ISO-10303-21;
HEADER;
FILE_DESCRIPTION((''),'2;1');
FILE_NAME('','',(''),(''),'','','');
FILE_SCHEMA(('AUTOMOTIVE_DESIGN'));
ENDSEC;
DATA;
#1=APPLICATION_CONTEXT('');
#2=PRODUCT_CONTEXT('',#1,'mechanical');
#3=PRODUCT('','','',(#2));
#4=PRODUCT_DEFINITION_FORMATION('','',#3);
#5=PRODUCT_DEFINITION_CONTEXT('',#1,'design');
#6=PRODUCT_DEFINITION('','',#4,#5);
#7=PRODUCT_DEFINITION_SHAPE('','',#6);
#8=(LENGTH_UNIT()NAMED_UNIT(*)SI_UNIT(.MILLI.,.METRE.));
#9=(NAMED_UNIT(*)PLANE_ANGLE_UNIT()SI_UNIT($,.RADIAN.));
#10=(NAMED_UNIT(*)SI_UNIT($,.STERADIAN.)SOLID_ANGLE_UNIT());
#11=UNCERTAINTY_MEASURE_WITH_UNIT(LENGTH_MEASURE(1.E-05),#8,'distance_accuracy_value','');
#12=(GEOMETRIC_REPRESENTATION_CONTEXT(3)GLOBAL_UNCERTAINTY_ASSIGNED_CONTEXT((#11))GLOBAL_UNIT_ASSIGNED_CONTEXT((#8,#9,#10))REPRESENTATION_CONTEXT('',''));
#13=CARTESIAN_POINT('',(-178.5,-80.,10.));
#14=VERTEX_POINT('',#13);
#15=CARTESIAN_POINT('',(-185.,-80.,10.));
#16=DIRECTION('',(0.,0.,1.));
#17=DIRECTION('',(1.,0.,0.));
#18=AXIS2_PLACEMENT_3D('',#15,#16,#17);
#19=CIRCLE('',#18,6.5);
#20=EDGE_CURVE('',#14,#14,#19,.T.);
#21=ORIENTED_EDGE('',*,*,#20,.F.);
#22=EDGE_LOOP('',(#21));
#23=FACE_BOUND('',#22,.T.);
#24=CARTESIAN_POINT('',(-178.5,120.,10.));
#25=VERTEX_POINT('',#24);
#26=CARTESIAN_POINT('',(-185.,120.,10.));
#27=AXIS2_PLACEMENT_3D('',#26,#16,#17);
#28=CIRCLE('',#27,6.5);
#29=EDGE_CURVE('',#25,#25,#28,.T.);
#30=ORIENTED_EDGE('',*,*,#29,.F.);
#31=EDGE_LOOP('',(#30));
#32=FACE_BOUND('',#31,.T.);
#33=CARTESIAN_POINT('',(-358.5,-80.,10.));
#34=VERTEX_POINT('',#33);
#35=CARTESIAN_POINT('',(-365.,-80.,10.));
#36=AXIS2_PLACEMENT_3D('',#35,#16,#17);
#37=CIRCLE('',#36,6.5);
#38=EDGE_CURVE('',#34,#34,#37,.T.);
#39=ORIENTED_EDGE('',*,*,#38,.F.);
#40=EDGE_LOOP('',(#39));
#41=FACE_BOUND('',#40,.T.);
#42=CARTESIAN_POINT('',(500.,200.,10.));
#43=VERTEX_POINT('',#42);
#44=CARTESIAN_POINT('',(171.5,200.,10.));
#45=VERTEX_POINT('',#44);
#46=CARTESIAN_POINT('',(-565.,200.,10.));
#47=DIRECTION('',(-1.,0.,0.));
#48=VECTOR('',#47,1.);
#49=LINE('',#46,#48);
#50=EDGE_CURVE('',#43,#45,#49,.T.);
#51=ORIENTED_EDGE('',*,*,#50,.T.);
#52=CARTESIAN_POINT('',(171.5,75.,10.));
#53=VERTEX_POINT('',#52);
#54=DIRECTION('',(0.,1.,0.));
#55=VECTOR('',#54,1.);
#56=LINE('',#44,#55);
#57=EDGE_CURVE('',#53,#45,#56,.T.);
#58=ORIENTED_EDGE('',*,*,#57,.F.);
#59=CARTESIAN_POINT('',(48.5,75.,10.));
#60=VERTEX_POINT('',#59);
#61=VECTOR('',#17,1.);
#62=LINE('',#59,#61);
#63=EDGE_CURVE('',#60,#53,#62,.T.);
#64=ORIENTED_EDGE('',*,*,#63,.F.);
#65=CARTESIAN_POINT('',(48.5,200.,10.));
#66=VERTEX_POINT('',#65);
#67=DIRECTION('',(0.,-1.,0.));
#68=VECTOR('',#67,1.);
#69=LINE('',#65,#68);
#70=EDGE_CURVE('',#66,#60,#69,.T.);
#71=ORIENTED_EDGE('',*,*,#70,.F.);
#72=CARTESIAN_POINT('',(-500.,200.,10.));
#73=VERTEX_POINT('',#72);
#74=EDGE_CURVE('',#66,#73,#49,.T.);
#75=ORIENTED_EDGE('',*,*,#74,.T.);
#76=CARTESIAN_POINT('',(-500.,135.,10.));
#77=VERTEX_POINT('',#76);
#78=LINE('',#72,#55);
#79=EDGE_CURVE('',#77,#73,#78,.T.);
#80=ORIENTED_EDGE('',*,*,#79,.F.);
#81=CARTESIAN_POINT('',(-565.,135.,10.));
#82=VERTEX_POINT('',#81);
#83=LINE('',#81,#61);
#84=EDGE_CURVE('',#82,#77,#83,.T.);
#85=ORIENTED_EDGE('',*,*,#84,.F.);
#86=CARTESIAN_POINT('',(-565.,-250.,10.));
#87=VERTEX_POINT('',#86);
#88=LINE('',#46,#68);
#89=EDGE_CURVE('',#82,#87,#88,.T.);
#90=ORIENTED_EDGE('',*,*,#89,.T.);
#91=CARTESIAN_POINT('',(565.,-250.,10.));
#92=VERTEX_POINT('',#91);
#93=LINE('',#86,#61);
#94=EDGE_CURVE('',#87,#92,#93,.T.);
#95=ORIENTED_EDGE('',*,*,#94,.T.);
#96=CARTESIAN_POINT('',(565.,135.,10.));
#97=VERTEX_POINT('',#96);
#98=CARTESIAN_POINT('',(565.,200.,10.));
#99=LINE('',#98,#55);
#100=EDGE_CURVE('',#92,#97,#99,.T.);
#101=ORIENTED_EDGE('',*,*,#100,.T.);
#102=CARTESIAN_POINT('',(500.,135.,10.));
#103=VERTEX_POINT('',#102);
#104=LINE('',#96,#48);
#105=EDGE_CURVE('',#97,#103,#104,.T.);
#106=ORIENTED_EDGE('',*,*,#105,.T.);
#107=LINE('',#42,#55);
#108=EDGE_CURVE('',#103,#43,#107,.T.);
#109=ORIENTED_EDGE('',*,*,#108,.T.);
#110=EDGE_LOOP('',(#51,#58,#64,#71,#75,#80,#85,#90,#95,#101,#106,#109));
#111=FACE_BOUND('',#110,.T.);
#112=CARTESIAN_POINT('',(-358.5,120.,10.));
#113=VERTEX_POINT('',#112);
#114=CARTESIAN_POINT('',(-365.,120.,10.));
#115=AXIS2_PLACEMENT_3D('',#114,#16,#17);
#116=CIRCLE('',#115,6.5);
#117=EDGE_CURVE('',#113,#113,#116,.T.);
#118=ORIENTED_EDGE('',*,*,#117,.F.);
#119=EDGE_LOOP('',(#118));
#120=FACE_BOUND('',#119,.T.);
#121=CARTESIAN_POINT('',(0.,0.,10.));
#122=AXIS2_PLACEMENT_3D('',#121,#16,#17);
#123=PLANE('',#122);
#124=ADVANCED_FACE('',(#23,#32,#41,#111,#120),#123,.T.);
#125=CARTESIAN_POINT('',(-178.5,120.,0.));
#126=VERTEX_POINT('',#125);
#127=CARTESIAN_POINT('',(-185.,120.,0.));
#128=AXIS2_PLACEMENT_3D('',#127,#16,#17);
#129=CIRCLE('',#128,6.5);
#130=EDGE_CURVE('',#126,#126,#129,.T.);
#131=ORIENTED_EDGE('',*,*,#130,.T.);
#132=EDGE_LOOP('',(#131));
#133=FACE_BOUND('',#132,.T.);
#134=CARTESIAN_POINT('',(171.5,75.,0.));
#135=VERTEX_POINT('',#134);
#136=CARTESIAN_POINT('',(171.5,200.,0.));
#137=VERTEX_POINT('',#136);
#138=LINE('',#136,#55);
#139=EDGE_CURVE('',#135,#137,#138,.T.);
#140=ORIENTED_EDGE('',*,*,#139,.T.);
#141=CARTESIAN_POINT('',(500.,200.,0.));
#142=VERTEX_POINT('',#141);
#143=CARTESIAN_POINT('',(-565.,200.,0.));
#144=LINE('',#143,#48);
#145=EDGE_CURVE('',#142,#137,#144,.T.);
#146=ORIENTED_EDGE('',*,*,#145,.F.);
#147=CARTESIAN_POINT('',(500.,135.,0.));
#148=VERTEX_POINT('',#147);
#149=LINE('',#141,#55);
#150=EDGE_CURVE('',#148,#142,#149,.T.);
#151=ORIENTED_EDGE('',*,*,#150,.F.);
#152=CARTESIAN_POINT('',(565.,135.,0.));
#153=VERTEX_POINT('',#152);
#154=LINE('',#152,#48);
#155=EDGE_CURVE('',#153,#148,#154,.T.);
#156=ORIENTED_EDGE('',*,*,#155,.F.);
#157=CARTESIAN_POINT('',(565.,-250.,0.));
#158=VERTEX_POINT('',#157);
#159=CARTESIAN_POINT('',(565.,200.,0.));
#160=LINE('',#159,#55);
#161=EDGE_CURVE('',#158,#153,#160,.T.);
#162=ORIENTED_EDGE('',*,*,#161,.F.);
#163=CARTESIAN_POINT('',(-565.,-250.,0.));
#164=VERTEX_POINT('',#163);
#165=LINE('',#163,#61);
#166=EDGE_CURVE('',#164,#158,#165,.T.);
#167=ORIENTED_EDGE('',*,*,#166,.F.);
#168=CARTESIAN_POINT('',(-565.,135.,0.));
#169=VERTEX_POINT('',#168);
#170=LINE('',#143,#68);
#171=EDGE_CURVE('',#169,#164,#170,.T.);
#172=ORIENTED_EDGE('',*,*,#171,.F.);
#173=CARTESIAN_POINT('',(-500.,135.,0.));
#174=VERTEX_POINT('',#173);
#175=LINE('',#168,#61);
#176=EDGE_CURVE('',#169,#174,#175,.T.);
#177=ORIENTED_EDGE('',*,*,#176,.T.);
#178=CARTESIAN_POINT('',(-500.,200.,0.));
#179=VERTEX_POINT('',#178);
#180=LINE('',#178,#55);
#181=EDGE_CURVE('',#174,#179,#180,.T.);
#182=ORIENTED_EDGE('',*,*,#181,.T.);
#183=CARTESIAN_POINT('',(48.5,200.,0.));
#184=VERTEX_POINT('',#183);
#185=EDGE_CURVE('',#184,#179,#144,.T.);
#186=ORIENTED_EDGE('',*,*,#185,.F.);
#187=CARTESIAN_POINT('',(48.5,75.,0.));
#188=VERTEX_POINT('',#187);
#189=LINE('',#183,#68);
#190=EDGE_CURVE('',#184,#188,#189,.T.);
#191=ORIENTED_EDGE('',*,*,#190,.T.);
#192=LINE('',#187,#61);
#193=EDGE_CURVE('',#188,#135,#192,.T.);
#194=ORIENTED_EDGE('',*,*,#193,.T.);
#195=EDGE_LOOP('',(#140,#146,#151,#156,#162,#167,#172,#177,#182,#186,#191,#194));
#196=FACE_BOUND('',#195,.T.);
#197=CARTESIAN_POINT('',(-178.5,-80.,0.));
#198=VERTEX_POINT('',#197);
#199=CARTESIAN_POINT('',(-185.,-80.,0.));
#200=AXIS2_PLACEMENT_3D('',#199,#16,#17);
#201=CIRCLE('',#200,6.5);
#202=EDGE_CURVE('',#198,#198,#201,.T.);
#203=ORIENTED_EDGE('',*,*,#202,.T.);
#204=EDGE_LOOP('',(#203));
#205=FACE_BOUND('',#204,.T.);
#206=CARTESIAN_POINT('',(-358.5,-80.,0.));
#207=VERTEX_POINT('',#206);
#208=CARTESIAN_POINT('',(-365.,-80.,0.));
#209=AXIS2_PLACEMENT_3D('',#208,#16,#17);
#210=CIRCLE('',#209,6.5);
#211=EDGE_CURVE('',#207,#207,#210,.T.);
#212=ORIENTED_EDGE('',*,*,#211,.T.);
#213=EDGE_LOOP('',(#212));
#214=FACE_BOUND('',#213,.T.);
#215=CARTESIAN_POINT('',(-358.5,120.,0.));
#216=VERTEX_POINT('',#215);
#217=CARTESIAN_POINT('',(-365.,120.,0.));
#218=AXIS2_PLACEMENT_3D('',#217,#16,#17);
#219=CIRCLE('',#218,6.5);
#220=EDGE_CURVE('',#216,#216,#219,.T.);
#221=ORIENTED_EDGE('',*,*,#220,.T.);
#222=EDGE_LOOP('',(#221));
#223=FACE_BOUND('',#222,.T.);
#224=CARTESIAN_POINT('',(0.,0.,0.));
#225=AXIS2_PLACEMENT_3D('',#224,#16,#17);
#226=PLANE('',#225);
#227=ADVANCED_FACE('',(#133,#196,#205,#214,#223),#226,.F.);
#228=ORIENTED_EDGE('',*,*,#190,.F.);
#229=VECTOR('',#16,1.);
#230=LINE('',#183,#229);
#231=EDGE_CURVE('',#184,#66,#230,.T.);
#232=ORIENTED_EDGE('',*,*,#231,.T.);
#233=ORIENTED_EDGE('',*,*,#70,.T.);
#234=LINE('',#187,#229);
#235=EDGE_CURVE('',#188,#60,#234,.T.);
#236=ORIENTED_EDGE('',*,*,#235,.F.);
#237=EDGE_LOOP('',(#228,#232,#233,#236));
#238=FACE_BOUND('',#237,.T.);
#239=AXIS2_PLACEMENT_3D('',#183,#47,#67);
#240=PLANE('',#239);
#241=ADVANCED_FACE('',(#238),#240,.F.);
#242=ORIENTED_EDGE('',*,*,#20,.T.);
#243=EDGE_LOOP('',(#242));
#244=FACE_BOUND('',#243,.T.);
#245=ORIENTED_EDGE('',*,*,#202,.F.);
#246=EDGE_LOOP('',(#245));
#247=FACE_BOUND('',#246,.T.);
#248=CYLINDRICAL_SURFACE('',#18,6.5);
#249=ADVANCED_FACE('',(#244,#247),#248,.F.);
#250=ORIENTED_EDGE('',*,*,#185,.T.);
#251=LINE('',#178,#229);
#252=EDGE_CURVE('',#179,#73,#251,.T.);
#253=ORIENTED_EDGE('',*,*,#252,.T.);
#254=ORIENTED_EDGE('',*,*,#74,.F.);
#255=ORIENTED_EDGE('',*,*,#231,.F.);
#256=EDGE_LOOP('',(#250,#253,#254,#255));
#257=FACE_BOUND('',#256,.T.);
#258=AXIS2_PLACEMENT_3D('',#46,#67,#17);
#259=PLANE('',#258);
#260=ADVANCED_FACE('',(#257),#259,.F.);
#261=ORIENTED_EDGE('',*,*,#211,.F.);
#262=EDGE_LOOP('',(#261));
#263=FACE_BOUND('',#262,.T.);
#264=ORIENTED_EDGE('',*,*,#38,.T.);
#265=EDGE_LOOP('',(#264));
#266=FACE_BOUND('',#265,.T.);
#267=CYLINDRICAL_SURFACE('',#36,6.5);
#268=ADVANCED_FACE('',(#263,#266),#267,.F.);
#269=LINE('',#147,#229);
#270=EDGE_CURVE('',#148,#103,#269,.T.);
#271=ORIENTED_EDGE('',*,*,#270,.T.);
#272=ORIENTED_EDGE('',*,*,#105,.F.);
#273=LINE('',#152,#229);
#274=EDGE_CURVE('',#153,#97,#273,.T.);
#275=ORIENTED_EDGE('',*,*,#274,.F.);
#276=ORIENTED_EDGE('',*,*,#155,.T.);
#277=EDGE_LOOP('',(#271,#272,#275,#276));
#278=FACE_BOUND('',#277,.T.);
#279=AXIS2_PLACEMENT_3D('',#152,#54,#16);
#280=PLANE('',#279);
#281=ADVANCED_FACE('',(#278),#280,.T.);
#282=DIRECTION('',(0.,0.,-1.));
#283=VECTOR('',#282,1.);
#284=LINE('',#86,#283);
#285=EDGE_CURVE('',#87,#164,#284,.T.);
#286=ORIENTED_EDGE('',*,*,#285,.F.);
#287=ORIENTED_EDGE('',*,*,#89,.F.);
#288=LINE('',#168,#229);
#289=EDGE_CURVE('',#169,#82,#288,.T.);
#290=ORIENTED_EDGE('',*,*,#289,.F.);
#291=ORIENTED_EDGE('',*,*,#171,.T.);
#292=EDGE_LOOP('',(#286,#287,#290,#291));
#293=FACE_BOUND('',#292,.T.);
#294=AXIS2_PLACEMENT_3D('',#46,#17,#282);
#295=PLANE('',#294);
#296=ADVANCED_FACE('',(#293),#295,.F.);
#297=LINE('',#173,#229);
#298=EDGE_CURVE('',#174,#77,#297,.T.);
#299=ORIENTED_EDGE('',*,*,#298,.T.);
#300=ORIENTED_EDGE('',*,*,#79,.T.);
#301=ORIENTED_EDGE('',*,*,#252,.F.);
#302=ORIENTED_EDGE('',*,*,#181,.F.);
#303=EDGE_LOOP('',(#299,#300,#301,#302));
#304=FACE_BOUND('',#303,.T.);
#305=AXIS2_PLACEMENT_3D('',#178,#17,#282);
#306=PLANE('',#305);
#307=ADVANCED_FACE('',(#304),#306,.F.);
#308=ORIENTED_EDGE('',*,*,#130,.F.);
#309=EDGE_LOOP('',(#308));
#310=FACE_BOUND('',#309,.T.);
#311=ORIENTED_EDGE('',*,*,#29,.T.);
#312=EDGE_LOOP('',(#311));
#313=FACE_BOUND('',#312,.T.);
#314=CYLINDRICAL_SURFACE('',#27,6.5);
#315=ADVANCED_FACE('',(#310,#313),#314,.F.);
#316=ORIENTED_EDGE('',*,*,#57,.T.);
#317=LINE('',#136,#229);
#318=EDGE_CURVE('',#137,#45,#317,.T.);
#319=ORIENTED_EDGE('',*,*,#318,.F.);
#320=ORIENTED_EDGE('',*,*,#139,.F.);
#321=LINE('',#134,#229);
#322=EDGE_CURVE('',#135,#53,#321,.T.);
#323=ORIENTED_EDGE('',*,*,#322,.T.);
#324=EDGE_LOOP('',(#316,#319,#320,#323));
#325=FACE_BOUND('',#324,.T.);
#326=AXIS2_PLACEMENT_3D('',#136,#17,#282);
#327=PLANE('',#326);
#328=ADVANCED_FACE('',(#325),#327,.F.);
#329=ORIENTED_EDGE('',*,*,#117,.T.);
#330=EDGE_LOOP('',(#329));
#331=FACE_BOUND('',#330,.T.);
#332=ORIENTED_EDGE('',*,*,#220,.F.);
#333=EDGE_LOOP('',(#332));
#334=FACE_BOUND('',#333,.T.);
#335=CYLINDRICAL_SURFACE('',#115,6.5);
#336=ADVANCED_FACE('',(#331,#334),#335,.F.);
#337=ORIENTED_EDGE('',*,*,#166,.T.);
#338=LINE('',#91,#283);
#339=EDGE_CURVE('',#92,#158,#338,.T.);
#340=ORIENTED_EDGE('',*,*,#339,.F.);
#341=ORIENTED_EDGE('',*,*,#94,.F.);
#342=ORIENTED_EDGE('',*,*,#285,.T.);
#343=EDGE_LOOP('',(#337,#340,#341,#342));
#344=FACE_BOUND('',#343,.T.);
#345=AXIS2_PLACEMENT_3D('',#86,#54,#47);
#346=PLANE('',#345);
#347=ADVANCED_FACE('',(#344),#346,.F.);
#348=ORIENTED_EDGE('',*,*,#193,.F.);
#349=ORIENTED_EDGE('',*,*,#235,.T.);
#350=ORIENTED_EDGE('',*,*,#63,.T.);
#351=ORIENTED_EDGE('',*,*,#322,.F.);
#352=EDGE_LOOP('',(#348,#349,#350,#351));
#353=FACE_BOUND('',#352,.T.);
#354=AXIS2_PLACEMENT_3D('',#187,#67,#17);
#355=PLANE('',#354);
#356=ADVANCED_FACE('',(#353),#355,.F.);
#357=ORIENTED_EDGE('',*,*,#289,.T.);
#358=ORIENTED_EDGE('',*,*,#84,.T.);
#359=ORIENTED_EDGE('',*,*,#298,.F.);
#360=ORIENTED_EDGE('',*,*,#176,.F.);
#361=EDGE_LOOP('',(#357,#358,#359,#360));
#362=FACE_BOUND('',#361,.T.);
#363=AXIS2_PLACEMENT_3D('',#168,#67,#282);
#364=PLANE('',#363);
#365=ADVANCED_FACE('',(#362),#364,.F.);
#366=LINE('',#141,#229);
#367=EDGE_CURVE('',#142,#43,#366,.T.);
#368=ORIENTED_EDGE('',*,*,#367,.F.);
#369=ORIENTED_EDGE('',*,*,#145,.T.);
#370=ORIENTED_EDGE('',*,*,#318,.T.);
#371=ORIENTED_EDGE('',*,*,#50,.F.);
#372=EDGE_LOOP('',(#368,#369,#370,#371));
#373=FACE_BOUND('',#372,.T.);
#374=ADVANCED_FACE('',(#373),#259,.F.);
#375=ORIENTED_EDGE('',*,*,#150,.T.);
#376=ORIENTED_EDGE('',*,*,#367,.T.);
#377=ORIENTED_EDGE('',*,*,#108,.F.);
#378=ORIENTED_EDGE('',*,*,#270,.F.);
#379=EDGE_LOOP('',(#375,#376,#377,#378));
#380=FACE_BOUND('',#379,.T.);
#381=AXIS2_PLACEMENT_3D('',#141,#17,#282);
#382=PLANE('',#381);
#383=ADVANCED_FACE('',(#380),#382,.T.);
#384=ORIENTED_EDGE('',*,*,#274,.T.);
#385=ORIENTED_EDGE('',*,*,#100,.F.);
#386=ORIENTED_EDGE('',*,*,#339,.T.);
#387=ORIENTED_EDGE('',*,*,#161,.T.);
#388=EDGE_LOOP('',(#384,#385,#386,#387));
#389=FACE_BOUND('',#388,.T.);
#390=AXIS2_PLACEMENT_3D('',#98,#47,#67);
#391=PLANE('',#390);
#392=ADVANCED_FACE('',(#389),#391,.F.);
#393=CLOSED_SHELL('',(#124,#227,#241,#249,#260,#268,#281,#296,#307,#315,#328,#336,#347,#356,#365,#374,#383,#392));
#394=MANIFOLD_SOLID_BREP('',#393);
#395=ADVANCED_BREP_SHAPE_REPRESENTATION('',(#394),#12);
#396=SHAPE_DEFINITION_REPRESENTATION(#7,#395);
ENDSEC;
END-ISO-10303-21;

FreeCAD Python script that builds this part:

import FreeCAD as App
import Part
import Sketcher

V = App.Vector

doc = App.newDocument("Part")
params = doc.addObject("Spreadsheet::Sheet", "Params")
for row, (alias, value) in enumerate([
    ("sketch1_width", "1130 mm"),
    ("sketch1_height", "450 mm"),
    ("pad1_length", "10 mm"),
    ("sketch2_width", "65 mm"),
    ("sketch3_width", "123 mm"),
    ("sketch3_height", "125 mm"),
    ("sketch4_diameter", "13 mm"),
    ("hole_diameter", "13 mm"),
], start=1):
    params.set(f"A{row}", alias)
    params.set(f"B{row}", "=" + value)
    params.setAlias(f"B{row}", alias)

body = doc.addObject("PartDesign::Body", "Body")

sketch1 = body.newObject("Sketcher::SketchObject", "Sketch")
sketch1.AttachmentSupport = (doc.getObject("XY_Plane"), [""])
sketch1.MapMode = "FlatFace"
sketch1.addGeometry([
    Part.LineSegment(V(-565, 200, 0), V(-565, -250, 0)),
    Part.LineSegment(V(-565, -250, 0), V(565, -250, 0)),
    Part.LineSegment(V(565, -250, 0), V(565, 200, 0)),
    Part.LineSegment(V(565, 200, 0), V(-565, 200, 0)),
], False)
sketch1.addConstraint([
    Sketcher.Constraint("Coincident", 0, 2, 1, 1),
    Sketcher.Constraint("Coincident", 1, 2, 2, 1),
    Sketcher.Constraint("Coincident", 2, 2, 3, 1),
    Sketcher.Constraint("Coincident", 3, 2, 0, 1),
    Sketcher.Constraint("Vertical", 0),
    Sketcher.Constraint("Horizontal", 1),
    Sketcher.Constraint("Vertical", 2),
    Sketcher.Constraint("Horizontal", 3),
    Sketcher.Constraint("DistanceX", 1, 1, 1, 2, 1130.0),
    Sketcher.Constraint("DistanceY", 0, 2, 0, 1, 450.0),
    Sketcher.Constraint("DistanceX", 0, 2, -1, 1, 565.0),
    Sketcher.Constraint("DistanceY", 0, 2, -1, 1, 250.0),
])
sketch1.setExpression("Constraints[8]", "Params.sketch1_width")
sketch1.setExpression("Constraints[9]", "Params.sketch1_height")
pad1 = body.newObject("PartDesign::Pad", "Pad")
pad1.Profile = sketch1
pad1.setExpression("Length", "Params.pad1_length")

sketch2 = body.newObject("Sketcher::SketchObject", "Sketch001")
sketch2.AttachmentSupport = (doc.getObject("XY_Plane"), [""])
sketch2.MapMode = "FlatFace"
sketch2.AttachmentOffset = App.Placement(V(0, 0, 10), App.Rotation())
sketch2.addGeometry([
    Part.LineSegment(V(-565, 200, 0), V(-565, 135, 0)),
    Part.LineSegment(V(-565, 135, 0), V(-500, 135, 0)),
    Part.LineSegment(V(-500, 135, 0), V(-500, 200, 0)),
    Part.LineSegment(V(-500, 200, 0), V(-565, 200, 0)),
], False)
sketch2.addConstraint([
    Sketcher.Constraint("Coincident", 0, 2, 1, 1),
    Sketcher.Constraint("Coincident", 1, 2, 2, 1),
    Sketcher.Constraint("Coincident", 2, 2, 3, 1),
    Sketcher.Constraint("Coincident", 3, 2, 0, 1),
    Sketcher.Constraint("Vertical", 0),
    Sketcher.Constraint("Horizontal", 1),
    Sketcher.Constraint("Vertical", 2),
    Sketcher.Constraint("Horizontal", 3),
    Sketcher.Constraint("Equal", 3, 0),
    Sketcher.Constraint("DistanceX", 1, 1, 1, 2, 65.0),
    Sketcher.Constraint("DistanceX", 0, 2, -1, 1, 565.0),
    Sketcher.Constraint("DistanceY", -1, 1, 0, 2, 135.0),
])
sketch2.setExpression("Constraints[9]", "Params.sketch2_width")
pocket1 = body.newObject("PartDesign::Pocket", "Pocket")
pocket1.Profile = sketch2
pocket1.Type = "ThroughAll"
doc.recompute()

mirrored = body.newObject("PartDesign::Mirrored", "Mirrored")
mirrored.Originals = [pocket1]
mirrored.MirrorPlane = (doc.getObject("YZ_Plane"), [""])
body.Tip = mirrored

sketch3 = body.newObject("Sketcher::SketchObject", "Sketch002")
sketch3.AttachmentSupport = (doc.getObject("XY_Plane"), [""])
sketch3.MapMode = "FlatFace"
sketch3.AttachmentOffset = App.Placement(V(0, 0, 10), App.Rotation())
sketch3.addGeometry([
    Part.LineSegment(V(48, 200, 0), V(48, 75, 0)),
    Part.LineSegment(V(48, 75, 0), V(172, 75, 0)),
    Part.LineSegment(V(172, 75, 0), V(172, 200, 0)),
    Part.LineSegment(V(172, 200, 0), V(48, 200, 0)),
], False)
sketch3.addConstraint([
    Sketcher.Constraint("Coincident", 0, 2, 1, 1),
    Sketcher.Constraint("Coincident", 1, 2, 2, 1),
    Sketcher.Constraint("Coincident", 2, 2, 3, 1),
    Sketcher.Constraint("Coincident", 3, 2, 0, 1),
    Sketcher.Constraint("Vertical", 0),
    Sketcher.Constraint("Horizontal", 1),
    Sketcher.Constraint("Vertical", 2),
    Sketcher.Constraint("Horizontal", 3),
    Sketcher.Constraint("DistanceX", 1, 1, 1, 2, 123.0),
    Sketcher.Constraint("DistanceY", 0, 2, 0, 1, 125.0),
    Sketcher.Constraint("DistanceY", -1, 1, 0, 2, 75.0),
    Sketcher.Constraint("DistanceX", -1, 1, 0, 2, 48.5),
])
sketch3.setExpression("Constraints[8]", "Params.sketch3_width")
sketch3.setExpression("Constraints[9]", "Params.sketch3_height")
pocket2 = body.newObject("PartDesign::Pocket", "Pocket001")
pocket2.Profile = sketch3
pocket2.Type = "ThroughAll"

sketch4 = body.newObject("Sketcher::SketchObject", "Sketch003")
sketch4.AttachmentSupport = (doc.getObject("XY_Plane"), [""])
sketch4.MapMode = "FlatFace"
sketch4.AttachmentOffset = App.Placement(V(0, 0, 10), App.Rotation())
sketch4.addGeometry([
    Part.Circle(V(-365, 120, 0), V(0, 0, 1), 6),
    Part.Circle(V(-185, 120, 0), V(0, 0, 1), 6),
    Part.Circle(V(-185, -80, 0), V(0, 0, 1), 6),
    Part.Circle(V(-365, -80, 0), V(0, 0, 1), 6),
], False)
sketch4.addConstraint([
    Sketcher.Constraint("Equal", 0, 1),
    Sketcher.Constraint("Equal", 1, 2),
    Sketcher.Constraint("Equal", 2, 3),
    Sketcher.Constraint("Horizontal", 0, 3, 1, 3),
    Sketcher.Constraint("Horizontal", 2, 3, 3, 3),
    Sketcher.Constraint("Vertical", 1, 3, 2, 3),
    Sketcher.Constraint("Vertical", 0, 3, 3, 3),
    Sketcher.Constraint("Diameter", 0, 13.0),
    Sketcher.Constraint("DistanceX", 0, 3, -1, 1, 365.0),
    Sketcher.Constraint("DistanceY", -1, 1, 0, 3, 120.0),
    Sketcher.Constraint("DistanceX", 1, 3, -1, 1, 185.0),
    Sketcher.Constraint("DistanceY", 2, 3, -1, 1, 80.0),
])
sketch4.setExpression("Constraints[7]", "Params.sketch4_diameter")
doc.recompute()
hole = body.newObject("PartDesign::Hole", "Hole")
hole.Profile = sketch4
hole.ThreadType = "None"
hole.setExpression("Diameter", "Params.hole_diameter")
hole.DepthType = "ThroughAll"

doc.recompute()
